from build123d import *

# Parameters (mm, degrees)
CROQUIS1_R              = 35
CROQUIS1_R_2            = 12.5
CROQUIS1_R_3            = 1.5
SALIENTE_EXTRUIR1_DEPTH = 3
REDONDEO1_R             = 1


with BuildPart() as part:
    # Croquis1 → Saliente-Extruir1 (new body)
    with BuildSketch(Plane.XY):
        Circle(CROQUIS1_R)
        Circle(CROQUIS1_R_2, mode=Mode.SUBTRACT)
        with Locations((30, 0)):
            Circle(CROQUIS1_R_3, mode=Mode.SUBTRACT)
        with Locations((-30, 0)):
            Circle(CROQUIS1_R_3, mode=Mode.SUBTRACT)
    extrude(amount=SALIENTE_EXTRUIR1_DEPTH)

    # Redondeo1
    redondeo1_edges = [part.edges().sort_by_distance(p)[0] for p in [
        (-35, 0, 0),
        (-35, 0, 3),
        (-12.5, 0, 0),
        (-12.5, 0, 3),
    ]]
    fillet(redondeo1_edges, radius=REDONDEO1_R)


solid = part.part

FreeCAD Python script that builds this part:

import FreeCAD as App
import Part
import Sketcher

V = App.Vector


def edges_at(feature, points):
    """Names of the edges that pass closest to the given points."""
    edges = feature.Shape.Edges
    near = lambda p: min(range(len(edges)), key=lambda i: edges[i].distToShape(Part.Vertex(*p))[0])
    return sorted({f"Edge{near(p) + 1}" for p in points})

doc = App.newDocument("Part")
params = doc.addObject("Spreadsheet::Sheet", "Params")
for row, (alias, value) in enumerate([
    ("sketch1_diameter", "70 mm"),
    ("sketch1_diameter2", "3 mm"),
    ("sketch1_diameter3", "25 mm"),
    ("pad1_length", "3 mm"),
    ("fillet_radius", "1 mm"),
], start=1):
    params.set(f"A{row}", alias)
    params.set(f"B{row}", "=" + value)
    params.setAlias(f"B{row}", alias)

body = doc.addObject("PartDesign::Body", "Body")

sketch1 = body.newObject("Sketcher::SketchObject", "Sketch")
sketch1.AttachmentSupport = (doc.getObject("XY_Plane"), [""])
sketch1.MapMode = "FlatFace"
sketch1.addGeometry(Part.Circle(V(0, 0, 0), V(0, 0, 1), 35), False)
sketch1.addGeometry(Part.Circle(V(-30, 0, 0), V(0, 0, 1), 1.5), False)
sketch1.addGeometry(Part.Circle(V(0, 0, 0), V(0, 0, 1), 12.5), False)
sketch1.addGeometry(Part.Circle(V(30, 0, 0), V(0, 0, 1), 1.5), False)
sketch1.addConstraint(Sketcher.Constraint("Coincident", 0, 3, -1, 1))
sketch1.addConstraint(Sketcher.Constraint("Coincident", 2, 3, -1, 1))
sketch1.addConstraint(Sketcher.Constraint("Equal", 1, 3))
sketch1.addConstraint(Sketcher.Constraint("Symmetric", 1, 3, 3, 3, -1, 1))
sketch1.addConstraint(Sketcher.Constraint("PointOnObject", 1, 3, -1))
sketch1.addConstraint(Sketcher.Constraint("Diameter", 0, 70.0))
sketch1.addConstraint(Sketcher.Constraint("Diameter", 1, 3.0))
sketch1.addConstraint(Sketcher.Constraint("Diameter", 2, 25.0))
sketch1.addConstraint(Sketcher.Constraint("DistanceX", 1, 3, -1, 1, 30.0))
sketch1.setExpression("Constraints[5]", "Params.sketch1_diameter")
sketch1.setExpression("Constraints[6]", "Params.sketch1_diameter2")
sketch1.setExpression("Constraints[7]", "Params.sketch1_diameter3")
pad1 = body.newObject("PartDesign::Pad", "Pad")
pad1.Profile = sketch1
pad1.setExpression("Length", "Params.pad1_length")
doc.recompute()

fillet = body.newObject("PartDesign::Fillet", "Fillet")
fillet.Base = (pad1, edges_at(pad1, [
    (-35, 0, 0),
    (-35, 0, 3),
    (-12.5, 0, 0),
    (-12.5, 0, 3),
]))
fillet.setExpression("Radius", "Params.fillet_radius")

doc.recompute()
